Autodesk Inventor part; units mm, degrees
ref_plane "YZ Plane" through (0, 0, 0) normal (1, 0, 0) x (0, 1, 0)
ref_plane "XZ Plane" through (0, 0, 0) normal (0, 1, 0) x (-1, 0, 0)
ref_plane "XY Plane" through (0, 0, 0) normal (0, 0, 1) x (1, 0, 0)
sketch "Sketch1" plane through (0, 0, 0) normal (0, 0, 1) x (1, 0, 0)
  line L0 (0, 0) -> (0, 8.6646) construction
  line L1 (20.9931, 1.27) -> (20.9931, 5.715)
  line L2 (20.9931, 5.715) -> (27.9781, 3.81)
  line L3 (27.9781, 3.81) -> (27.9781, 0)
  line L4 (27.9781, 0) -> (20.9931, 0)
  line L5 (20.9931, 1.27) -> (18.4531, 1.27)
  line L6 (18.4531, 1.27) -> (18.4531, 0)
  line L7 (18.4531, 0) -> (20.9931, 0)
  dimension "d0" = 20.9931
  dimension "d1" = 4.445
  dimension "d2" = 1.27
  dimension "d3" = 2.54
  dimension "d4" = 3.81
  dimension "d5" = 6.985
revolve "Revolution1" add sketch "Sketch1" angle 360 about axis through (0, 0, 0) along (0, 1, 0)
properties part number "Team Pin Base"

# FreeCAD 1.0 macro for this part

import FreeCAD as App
import Part
import Sketcher

V = App.Vector
Q = App.Units.Quantity

doc = App.newDocument("Part")
params = doc.addObject("Spreadsheet::Sheet", "Params")
for row, (alias, value) in enumerate([
    ("sketch1_width", "0.1 in"),
    ("sketch1_height", "0.05 in"),
    ("sketch1_height2", "0.15 in"),
    ("sketch1_height3", "0.175 in"),
    ("revolution_angle", "360 deg"),
], start=1):
    params.set(f"A{row}", alias)
    params.set(f"B{row}", "=" + value)
    params.setAlias(f"B{row}", alias)

body = doc.addObject("PartDesign::Body", "Body")

sketch1 = body.newObject("Sketcher::SketchObject", "Sketch")
sketch1.AttachmentSupport = (doc.getObject("XY_Plane"), [""])
sketch1.MapMode = "FlatFace"
sketch1.addGeometry([
    Part.LineSegment(V(21, 5.7, 0), V(21, 1.3, 0)),
    Part.LineSegment(V(21, 1.3, 0), V(18.5, 1.3, 0)),
    Part.LineSegment(V(18.5, 1.3, 0), V(18.5, 0, 0)),
    Part.LineSegment(V(18.5, 0, 0), V(28, 0, 0)),
    Part.LineSegment(V(28, 0, 0), V(28, 3.8, 0)),
    Part.LineSegment(V(28, 3.8, 0), V(21, 5.7, 0)),
], False)
sketch1.addConstraint([
    Sketcher.Constraint("Coincident", 0, 2, 1, 1),
    Sketcher.Constraint("Coincident", 1, 2, 2, 1),
    Sketcher.Constraint("Coincident", 2, 2, 3, 1),
    Sketcher.Constraint("Coincident", 3, 2, 4, 1),
    Sketcher.Constraint("Coincident", 4, 2, 5, 1),
    Sketcher.Constraint("Coincident", 5, 2, 0, 1),
    Sketcher.Constraint("Vertical", 0),
    Sketcher.Constraint("Horizontal", 1),
    Sketcher.Constraint("Vertical", 2),
    Sketcher.Constraint("Horizontal", 3),
    Sketcher.Constraint("Vertical", 4),
    Sketcher.Constraint("PointOnObject", 2, 2, -1),
    Sketcher.Constraint("DistanceX", 1, 2, 1, 1, Q("0.1 in")),
    Sketcher.Constraint("DistanceY", 2, 2, 2, 1, Q("0.05 in")),
    Sketcher.Constraint("DistanceY", 4, 1, 4, 2, Q("0.15 in")),
    Sketcher.Constraint("DistanceY", 0, 2, 0, 1, Q("0.175 in")),
    Sketcher.Constraint("DistanceX", 0, 2, 3, 2, Q("0.275 in")),
    Sketcher.Constraint("DistanceX", -1, 1, 0, 2, Q("0.8265 in")),
])
sketch1.setExpression("Constraints[12]", "Params.sketch1_width")
sketch1.setExpression("Constraints[13]", "Params.sketch1_height")
sketch1.setExpression("Constraints[14]", "Params.sketch1_height2")
sketch1.setExpression("Constraints[15]", "Params.sketch1_height3")
revolution = body.newObject("PartDesign::Revolution", "Revolution")
revolution.Profile = sketch1
revolution.ReferenceAxis = (sketch1, ["V_Axis"])
revolution.setExpression("Angle", "Params.revolution_angle")

doc.recompute()
